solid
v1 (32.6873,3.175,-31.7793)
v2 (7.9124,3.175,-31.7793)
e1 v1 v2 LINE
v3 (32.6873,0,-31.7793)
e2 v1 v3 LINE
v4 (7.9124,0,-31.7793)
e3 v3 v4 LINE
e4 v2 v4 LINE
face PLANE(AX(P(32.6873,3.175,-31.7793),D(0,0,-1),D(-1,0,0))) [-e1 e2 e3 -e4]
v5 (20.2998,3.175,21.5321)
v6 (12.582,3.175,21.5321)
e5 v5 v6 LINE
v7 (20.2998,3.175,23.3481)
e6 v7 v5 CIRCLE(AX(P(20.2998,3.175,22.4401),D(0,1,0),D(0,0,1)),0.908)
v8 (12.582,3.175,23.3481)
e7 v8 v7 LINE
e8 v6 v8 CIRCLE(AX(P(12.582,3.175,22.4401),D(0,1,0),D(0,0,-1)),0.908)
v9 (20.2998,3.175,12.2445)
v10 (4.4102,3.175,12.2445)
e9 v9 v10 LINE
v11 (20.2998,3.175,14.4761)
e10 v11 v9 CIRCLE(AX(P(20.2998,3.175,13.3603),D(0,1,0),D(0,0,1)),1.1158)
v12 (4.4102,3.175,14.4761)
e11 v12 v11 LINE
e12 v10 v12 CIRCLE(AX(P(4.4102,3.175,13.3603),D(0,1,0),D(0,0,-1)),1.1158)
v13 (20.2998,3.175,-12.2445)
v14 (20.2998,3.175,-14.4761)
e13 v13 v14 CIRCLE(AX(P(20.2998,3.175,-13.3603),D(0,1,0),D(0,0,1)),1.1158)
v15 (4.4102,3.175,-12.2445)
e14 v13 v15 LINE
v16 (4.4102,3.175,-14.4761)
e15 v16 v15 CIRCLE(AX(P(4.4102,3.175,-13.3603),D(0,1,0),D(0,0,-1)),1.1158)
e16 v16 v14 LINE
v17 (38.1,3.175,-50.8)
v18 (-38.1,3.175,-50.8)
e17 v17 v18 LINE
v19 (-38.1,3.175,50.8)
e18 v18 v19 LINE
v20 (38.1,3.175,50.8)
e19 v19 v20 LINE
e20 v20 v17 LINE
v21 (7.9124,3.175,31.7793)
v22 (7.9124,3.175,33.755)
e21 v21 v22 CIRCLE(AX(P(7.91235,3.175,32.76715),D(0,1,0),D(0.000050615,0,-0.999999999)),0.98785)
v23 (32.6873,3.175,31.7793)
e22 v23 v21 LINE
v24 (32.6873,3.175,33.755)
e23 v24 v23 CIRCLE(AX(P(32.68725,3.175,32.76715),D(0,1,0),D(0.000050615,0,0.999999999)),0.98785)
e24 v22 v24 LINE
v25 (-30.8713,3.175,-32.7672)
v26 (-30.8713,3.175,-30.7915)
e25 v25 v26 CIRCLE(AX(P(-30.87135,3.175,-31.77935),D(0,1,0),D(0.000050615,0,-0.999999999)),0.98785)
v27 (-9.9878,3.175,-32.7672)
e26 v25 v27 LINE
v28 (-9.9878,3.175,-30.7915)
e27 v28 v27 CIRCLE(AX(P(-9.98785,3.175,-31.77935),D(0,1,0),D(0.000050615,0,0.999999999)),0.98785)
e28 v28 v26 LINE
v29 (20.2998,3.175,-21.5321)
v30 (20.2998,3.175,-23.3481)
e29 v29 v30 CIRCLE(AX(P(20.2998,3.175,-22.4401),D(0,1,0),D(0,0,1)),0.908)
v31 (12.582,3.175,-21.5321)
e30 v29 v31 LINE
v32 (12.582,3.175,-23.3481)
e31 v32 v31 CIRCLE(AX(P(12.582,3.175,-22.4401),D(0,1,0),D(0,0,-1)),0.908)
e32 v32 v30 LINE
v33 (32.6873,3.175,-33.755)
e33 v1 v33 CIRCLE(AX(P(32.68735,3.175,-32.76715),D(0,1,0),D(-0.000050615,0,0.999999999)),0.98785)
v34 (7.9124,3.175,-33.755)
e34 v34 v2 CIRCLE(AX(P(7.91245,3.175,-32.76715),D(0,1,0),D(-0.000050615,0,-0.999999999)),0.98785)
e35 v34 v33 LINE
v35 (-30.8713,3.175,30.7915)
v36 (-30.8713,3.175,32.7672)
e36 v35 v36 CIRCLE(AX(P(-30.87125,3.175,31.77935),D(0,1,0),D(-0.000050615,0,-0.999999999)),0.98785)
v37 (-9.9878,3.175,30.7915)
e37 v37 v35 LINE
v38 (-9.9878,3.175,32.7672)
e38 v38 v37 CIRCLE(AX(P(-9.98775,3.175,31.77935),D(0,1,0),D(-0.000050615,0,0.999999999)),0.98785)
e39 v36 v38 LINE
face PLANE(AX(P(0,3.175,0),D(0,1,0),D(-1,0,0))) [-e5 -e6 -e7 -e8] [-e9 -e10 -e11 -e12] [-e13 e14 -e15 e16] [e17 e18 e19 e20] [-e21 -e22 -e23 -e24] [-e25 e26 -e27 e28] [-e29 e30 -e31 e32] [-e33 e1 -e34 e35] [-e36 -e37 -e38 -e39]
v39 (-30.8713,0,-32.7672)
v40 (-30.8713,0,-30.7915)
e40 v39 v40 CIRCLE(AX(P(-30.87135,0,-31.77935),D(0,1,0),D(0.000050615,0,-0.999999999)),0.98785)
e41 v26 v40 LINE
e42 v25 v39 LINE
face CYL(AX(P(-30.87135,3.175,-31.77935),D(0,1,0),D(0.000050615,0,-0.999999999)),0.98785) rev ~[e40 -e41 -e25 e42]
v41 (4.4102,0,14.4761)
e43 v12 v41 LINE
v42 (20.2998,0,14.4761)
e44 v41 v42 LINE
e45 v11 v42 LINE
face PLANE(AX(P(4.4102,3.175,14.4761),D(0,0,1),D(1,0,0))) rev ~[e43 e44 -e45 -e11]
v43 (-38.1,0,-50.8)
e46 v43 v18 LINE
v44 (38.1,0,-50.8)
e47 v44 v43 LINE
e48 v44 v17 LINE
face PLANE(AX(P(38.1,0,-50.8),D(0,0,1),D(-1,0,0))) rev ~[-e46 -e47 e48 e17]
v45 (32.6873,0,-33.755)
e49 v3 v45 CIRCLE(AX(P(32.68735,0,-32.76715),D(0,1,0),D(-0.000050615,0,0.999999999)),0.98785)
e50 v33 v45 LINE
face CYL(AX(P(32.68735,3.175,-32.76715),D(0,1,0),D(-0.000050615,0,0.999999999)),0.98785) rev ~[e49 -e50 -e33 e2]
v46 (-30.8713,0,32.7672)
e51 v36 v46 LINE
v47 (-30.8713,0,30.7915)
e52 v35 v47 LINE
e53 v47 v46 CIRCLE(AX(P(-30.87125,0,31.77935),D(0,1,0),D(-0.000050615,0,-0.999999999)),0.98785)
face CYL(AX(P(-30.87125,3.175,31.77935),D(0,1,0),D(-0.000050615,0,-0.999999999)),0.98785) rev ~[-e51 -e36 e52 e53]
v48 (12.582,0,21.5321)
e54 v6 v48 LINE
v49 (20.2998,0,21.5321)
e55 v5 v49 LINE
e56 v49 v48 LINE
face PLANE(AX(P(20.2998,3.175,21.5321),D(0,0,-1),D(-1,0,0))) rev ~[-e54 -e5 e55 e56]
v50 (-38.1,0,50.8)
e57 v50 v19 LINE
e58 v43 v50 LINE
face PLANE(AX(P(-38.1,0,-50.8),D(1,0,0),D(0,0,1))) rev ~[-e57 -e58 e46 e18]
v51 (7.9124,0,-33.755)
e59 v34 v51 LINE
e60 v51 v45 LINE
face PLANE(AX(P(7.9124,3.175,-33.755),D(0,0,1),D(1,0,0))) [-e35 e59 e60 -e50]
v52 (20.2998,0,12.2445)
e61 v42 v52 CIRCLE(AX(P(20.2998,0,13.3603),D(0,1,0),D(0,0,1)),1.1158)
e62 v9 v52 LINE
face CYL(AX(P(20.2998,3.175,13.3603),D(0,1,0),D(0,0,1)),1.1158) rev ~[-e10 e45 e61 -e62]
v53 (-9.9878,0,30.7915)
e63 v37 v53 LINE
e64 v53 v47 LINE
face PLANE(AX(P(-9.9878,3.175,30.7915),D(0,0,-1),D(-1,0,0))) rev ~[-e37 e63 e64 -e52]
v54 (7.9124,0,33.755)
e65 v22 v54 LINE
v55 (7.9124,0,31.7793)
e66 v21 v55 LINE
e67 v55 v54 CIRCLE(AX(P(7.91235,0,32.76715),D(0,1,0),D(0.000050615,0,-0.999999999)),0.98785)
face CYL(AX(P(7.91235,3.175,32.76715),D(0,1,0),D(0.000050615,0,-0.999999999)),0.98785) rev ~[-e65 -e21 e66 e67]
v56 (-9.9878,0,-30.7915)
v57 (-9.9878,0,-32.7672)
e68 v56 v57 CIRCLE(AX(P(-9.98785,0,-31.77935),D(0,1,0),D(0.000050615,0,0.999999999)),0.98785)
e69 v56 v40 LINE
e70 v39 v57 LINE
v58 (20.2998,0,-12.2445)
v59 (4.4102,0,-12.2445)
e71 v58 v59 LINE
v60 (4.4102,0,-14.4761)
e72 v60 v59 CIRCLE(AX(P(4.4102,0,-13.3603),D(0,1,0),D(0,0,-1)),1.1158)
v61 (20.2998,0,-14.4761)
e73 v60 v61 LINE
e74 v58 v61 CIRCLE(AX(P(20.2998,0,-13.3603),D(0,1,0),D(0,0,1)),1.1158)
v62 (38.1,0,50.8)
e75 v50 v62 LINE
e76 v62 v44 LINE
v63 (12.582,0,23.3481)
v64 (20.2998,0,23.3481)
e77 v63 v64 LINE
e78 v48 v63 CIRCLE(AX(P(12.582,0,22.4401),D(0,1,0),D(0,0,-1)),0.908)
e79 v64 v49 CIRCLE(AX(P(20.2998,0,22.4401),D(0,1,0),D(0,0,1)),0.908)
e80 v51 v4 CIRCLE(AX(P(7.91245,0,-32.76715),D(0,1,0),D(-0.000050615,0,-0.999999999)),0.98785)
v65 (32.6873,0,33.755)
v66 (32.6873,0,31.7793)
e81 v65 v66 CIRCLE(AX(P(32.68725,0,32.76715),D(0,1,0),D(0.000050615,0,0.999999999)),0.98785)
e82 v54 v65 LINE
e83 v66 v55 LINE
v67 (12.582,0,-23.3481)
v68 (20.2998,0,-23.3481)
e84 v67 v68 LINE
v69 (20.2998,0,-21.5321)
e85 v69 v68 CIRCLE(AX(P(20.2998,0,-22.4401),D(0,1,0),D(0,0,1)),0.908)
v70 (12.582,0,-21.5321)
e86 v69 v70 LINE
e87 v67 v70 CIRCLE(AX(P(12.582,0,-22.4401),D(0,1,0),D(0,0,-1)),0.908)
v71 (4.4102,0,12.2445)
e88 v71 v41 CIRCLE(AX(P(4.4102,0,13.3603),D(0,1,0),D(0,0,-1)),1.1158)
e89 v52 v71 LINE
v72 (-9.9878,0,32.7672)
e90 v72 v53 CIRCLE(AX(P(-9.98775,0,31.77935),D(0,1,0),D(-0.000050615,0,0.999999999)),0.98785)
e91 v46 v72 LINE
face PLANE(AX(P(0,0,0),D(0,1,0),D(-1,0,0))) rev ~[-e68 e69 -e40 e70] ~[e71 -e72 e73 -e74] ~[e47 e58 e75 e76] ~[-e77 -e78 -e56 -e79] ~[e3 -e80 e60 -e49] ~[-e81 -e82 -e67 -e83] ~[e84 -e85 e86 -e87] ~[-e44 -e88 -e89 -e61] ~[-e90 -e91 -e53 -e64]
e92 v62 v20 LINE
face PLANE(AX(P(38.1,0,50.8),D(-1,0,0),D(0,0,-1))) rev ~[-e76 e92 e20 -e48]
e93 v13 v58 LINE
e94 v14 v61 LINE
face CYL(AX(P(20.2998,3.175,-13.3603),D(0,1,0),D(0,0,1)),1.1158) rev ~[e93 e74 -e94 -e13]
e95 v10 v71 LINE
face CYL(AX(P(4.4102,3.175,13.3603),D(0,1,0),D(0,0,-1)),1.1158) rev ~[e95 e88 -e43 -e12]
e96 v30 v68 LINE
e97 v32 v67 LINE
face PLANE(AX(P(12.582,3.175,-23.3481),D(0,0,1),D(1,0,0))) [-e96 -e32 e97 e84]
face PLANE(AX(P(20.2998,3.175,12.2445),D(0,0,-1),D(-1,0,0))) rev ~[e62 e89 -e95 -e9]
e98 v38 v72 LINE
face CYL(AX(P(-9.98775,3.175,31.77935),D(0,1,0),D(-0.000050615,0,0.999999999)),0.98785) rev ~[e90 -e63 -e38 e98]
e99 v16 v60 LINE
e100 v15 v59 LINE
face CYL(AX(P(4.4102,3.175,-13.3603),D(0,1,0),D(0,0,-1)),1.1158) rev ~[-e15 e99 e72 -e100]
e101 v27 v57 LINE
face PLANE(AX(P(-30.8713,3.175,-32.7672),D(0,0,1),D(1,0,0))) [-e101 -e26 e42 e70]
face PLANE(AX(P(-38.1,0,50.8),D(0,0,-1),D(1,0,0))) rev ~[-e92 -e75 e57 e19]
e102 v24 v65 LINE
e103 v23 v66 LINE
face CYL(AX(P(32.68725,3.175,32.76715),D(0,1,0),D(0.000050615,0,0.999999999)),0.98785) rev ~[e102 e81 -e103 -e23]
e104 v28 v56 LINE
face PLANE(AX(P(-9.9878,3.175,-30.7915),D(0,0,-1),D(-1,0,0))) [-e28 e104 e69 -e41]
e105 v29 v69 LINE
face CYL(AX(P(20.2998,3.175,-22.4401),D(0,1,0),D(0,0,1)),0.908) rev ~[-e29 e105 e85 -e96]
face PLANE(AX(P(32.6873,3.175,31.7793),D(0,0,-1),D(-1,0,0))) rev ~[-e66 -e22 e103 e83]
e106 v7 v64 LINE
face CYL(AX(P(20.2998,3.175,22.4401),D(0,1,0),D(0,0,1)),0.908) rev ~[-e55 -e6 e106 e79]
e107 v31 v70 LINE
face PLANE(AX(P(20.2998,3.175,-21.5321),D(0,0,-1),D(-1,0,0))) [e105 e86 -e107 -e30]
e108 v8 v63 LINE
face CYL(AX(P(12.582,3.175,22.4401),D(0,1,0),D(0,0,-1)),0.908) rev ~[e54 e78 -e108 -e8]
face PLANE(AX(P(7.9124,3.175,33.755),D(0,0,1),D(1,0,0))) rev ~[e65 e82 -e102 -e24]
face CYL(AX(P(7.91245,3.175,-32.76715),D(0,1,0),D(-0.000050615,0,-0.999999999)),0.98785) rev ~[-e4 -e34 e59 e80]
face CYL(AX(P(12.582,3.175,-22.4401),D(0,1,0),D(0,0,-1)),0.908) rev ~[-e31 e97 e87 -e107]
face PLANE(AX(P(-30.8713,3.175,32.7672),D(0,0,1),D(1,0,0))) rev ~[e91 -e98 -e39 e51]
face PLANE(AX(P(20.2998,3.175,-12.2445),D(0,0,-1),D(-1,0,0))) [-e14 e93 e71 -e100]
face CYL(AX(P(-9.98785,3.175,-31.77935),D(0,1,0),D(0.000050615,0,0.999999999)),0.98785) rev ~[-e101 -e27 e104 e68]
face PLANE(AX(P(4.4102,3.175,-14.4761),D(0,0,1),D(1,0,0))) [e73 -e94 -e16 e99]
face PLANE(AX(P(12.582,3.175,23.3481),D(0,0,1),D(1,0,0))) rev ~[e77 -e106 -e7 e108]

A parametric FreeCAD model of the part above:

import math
import FreeCAD as App
import Part
import Sketcher
Q = App.Units.Quantity


def add_polygon(sketch, points):
    """Adds a closed chain of lines whose ends are joined by coincident constraints."""
    first, n = sketch.GeometryCount, len(points)
    for a, b in zip(points, points[1:] + points[:1]):
        sketch.addGeometry(Part.LineSegment(App.Vector(*a, 0), App.Vector(*b, 0)), False)
    for i in range(n):
        sketch.addConstraint(Sketcher.Constraint("Coincident", first + i, 2, first + (i + 1) % n, 1))

doc = App.newDocument("Part")
body = doc.addObject("PartDesign::Body", "Body")

sketch1 = doc.addObject("Sketcher::SketchObject", "Sketch")
body.addObject(sketch1)
sketch1.AttachmentSupport = (doc.XZ_Plane, [""])
sketch1.MapMode = "FlatFace"
add_polygon(sketch1, [(38, 51), (38, -51), (-38, -51), (-38, 51)])
sketch1.addConstraint([
    Sketcher.Constraint("Vertical", 0),
    Sketcher.Constraint("Horizontal", 1),
    Sketcher.Constraint("Vertical", 2),
    Sketcher.Constraint("Horizontal", 3),
    Sketcher.Constraint("Symmetric", 0, 2, 2, 2, -1, 1),
    Sketcher.Constraint("DistanceX", 1, 2, 1, 1, Q("3 in")),
    Sketcher.Constraint("DistanceY", 0, 2, 0, 1, Q("4 in")),
])
pad1 = doc.addObject("PartDesign::Pad", "Pad")
body.addObject(pad1)
pad1.Profile = sketch1
pad1.Length = Q("0.125 in")
pad1.Reversed = True

sketch2 = doc.addObject("Sketcher::SketchObject", "Sketch001")
body.addObject(sketch2)
sketch2.AttachmentSupport = (doc.XZ_Plane, [""])
sketch2.MapMode = "FlatFace"
sketch2.AttachmentOffset = App.Placement(App.Vector(0, 0, -0.125 * 25.4), App.Rotation())
sketch2.addGeometry([
    Part.ArcOfCircle(Part.Circle(App.Vector(-10, 31.8, 0), App.Vector(0, 0, 1), 1), math.radians(-90), math.radians(90)),
    Part.LineSegment(App.Vector(-10, 30.8, 0), App.Vector(-30.9, 30.8, 0)),
    Part.ArcOfCircle(Part.Circle(App.Vector(-30.9, 31.8, 0), App.Vector(0, 0, 1), 1), math.radians(90), math.radians(270)),
    Part.LineSegment(App.Vector(-30.9, 32.8, 0), App.Vector(-10, 32.8, 0)),
    Part.ArcOfCircle(Part.Circle(App.Vector(7.9, 32.8, 0), App.Vector(0, 0, 1), 1), math.radians(90), math.radians(270)),
    Part.LineSegment(App.Vector(7.9, 33.8, 0), App.Vector(32.7, 33.8, 0)),
    Part.ArcOfCircle(Part.Circle(App.Vector(32.7, 32.8, 0), App.Vector(0, 0, 1), 1), math.radians(-90), math.radians(90)),
    Part.LineSegment(App.Vector(32.7, 31.8, 0), App.Vector(7.9, 31.8, 0)),
    Part.ArcOfCircle(Part.Circle(App.Vector(20.3, 22.4, 0), App.Vector(0, 0, 1), 0.9), math.radians(-90), math.radians(90)),
    Part.LineSegment(App.Vector(20.3, 21.5, 0), App.Vector(12.6, 21.5, 0)),
    Part.ArcOfCircle(Part.Circle(App.Vector(12.6, 22.4, 0), App.Vector(0, 0, 1), 0.9), math.radians(90), math.radians(270)),
    Part.LineSegment(App.Vector(12.6, 23.3, 0), App.Vector(20.3, 23.3, 0)),
    Part.ArcOfCircle(Part.Circle(App.Vector(20.3, 13.4, 0), App.Vector(0, 0, 1), 1.1), math.radians(-90), math.radians(90)),
    Part.LineSegment(App.Vector(20.3, 12.2, 0), App.Vector(4.4, 12.2, 0)),
    Part.ArcOfCircle(Part.Circle(App.Vector(4.4, 13.4, 0), App.Vector(0, 0, 1), 1.1), math.radians(90), math.radians(270)),
    Part.LineSegment(App.Vector(4.4, 14.5, 0), App.Vector(20.3, 14.5, 0)),
    Part.LineSegment(App.Vector(-30.9, -30.8, 0), App.Vector(-10, -30.8, 0)),
    Part.ArcOfCircle(Part.Circle(App.Vector(-10, -31.8, 0), App.Vector(0, 0, 1), 1), math.radians(-90), math.radians(90)),
    Part.LineSegment(App.Vector(-10, -32.8, 0), App.Vector(-30.9, -32.8, 0)),
    Part.ArcOfCircle(Part.Circle(App.Vector(-30.9, -31.8, 0), App.Vector(0, 0, 1), 1), math.radians(90), math.radians(270)),
    Part.LineSegment(App.Vector(32.7, -33.8, 0), App.Vector(7.9, -33.8, 0)),
    Part.ArcOfCircle(Part.Circle(App.Vector(7.9, -32.8, 0), App.Vector(0, 0, 1), 1), math.radians(90), math.radians(270)),
    Part.LineSegment(App.Vector(7.9, -31.8, 0), App.Vector(32.7, -31.8, 0)),
    Part.ArcOfCircle(Part.Circle(App.Vector(32.7, -32.8, 0), App.Vector(0, 0, 1), 1), math.radians(-90), math.radians(90)),
    Part.LineSegment(App.Vector(12.6, -21.5, 0), App.Vector(20.3, -21.5, 0)),
    Part.ArcOfCircle(Part.Circle(App.Vector(20.3, -22.4, 0), App.Vector(0, 0, 1), 0.9), math.radians(-90), math.radians(90)),
    Part.LineSegment(App.Vector(20.3, -23.3, 0), App.Vector(12.6, -23.3, 0)),
    Part.ArcOfCircle(Part.Circle(App.Vector(12.6, -22.4, 0), App.Vector(0, 0, 1), 0.9), math.radians(90), math.radians(270)),
    Part.LineSegment(App.Vector(4.4, -12.2, 0), App.Vector(20.3, -12.2, 0)),
    Part.ArcOfCircle(Part.Circle(App.Vector(20.3, -13.4, 0), App.Vector(0, 0, 1), 1.1), math.radians(-90), math.radians(90)),
    Part.LineSegment(App.Vector(20.3, -14.5, 0), App.Vector(4.4, -14.5, 0)),
    Part.ArcOfCircle(Part.Circle(App.Vector(4.4, -13.4, 0), App.Vector(0, 0, 1), 1.1), math.radians(90), math.radians(270)),
], False)
sketch2.addConstraint([
    Sketcher.Constraint("Tangent", 0, 1, 1, 1),
    Sketcher.Constraint("Tangent", 1, 2, 2, 2),
    Sketcher.Constraint("Tangent", 2, 1, 3, 1),
    Sketcher.Constraint("Tangent", 3, 2, 0, 2),
    Sketcher.Constraint("Tangent", 4, 1, 5, 1),
    Sketcher.Constraint("Tangent", 5, 2, 6, 2),
    Sketcher.Constraint("Tangent", 6, 1, 7, 1),
    Sketcher.Constraint("Tangent", 7, 2, 4, 2),
    Sketcher.Constraint("Tangent", 8, 1, 9, 1),
    Sketcher.Constraint("Tangent", 9, 2, 10, 2),
    Sketcher.Constraint("Tangent", 10, 1, 11, 1),
    Sketcher.Constraint("Tangent", 11, 2, 8, 2),
    Sketcher.Constraint("Tangent", 12, 1, 13, 1),
    Sketcher.Constraint("Tangent", 13, 2, 14, 2),
    Sketcher.Constraint("Tangent", 14, 1, 15, 1),
    Sketcher.Constraint("Tangent", 15, 2, 12, 2),
    Sketcher.Constraint("Tangent", 16, 2, 17, 2),
    Sketcher.Constraint("Tangent", 17, 1, 18, 1),
    Sketcher.Constraint("Tangent", 18, 2, 19, 2),
    Sketcher.Constraint("Tangent", 19, 1, 16, 1),
    Sketcher.Constraint("Tangent", 20, 2, 21, 2),
    Sketcher.Constraint("Tangent", 21, 1, 22, 1),
    Sketcher.Constraint("Tangent", 22, 2, 23, 2),
    Sketcher.Constraint("Tangent", 23, 1, 20, 1),
    Sketcher.Constraint("Tangent", 24, 2, 25, 2),
    Sketcher.Constraint("Tangent", 25, 1, 26, 1),
    Sketcher.Constraint("Tangent", 26, 2, 27, 2),
    Sketcher.Constraint("Tangent", 27, 1, 24, 1),
    Sketcher.Constraint("Tangent", 28, 2, 29, 2),
    Sketcher.Constraint("Tangent", 29, 1, 30, 1),
    Sketcher.Constraint("Tangent", 30, 2, 31, 2),
    Sketcher.Constraint("Tangent", 31, 1, 28, 1),
    Sketcher.Constraint("Horizontal", 1),
    Sketcher.Constraint("Horizontal", 3),
    Sketcher.Constraint("Horizontal", 5),
    Sketcher.Constraint("Horizontal", 7),
    Sketcher.Constraint("Horizontal", 9),
    Sketcher.Constraint("Horizontal", 11),
    Sketcher.Constraint("Horizontal", 13),
    Sketcher.Constraint("Horizontal", 15),
    Sketcher.Constraint("Horizontal", 16),
    Sketcher.Constraint("Horizontal", 18),
    Sketcher.Constraint("Horizontal", 20),
    Sketcher.Constraint("Horizontal", 22),
    Sketcher.Constraint("Horizontal", 24),
    Sketcher.Constraint("Horizontal", 26),
    Sketcher.Constraint("Horizontal", 28),
    Sketcher.Constraint("Horizontal", 30),
    Sketcher.Constraint("Equal", 2, 4),
    Sketcher.Constraint("Equal", 6, 17),
    Sketcher.Constraint("Equal", 19, 21),
    Sketcher.Constraint("Equal", 10, 25),
    Sketcher.Constraint("Equal", 14, 29),
    Sketcher.Constraint("Symmetric", 0, 3, 17, 3, -1),
    Sketcher.Constraint("Symmetric", 4, 3, 21, 3, -1),
    Sketcher.Constraint("Symmetric", 8, 3, 25, 3, -1),
    Sketcher.Constraint("Symmetric", 12, 3, 29, 3, -1),
    Sketcher.Constraint("Horizontal", 6, 3, 2, 1),
    Sketcher.Constraint("Vertical", 8, 3, 12, 3),
    Sketcher.Constraint("Vertical", 2, 3, 19, 3),
    Sketcher.Constraint("Vertical", 6, 3, 23, 3),
    Sketcher.Constraint("Vertical", 10, 3, 27, 3),
    Sketcher.Constraint("Vertical", 14, 3, 31, 3),
    Sketcher.Constraint("Radius", 0, Q("0.0389 in")),
    Sketcher.Constraint("Radius", 8, 0.908),
    Sketcher.Constraint("Radius", 12, 1.1158),
    Sketcher.Constraint("DistanceX", 5, 1, 5, 2, Q("0.9754 in")),
    Sketcher.Constraint("DistanceY", -1, 1, 12, 3, Q("0.526 in")),
    Sketcher.Constraint("DistanceX", 1, 2, 1, 1, 20.8835),
    Sketcher.Constraint("DistanceX", 9, 2, 9, 1, 7.7178),
    Sketcher.Constraint("DistanceX", 13, 2, 13, 1, 15.8896),
    Sketcher.Constraint("DistanceX", 2, 3, -1, 1, Q("1.2154 in")),
    Sketcher.Constraint("DistanceX", -1, 1, 4, 3, Q("0.3115 in")),
    Sketcher.Constraint("DistanceX", -1, 1, 8, 3, Q("0.7992 in")),
    Sketcher.Constraint("DistanceY", 17, 3, 0, 3, Q("2.5023 in")),
    Sketcher.Constraint("DistanceY", 10, 3, 0, 1, Q("0.3288 in")),
])
pocket1 = doc.addObject("PartDesign::Pocket", "Pocket")
body.addObject(pocket1)
pocket1.Profile = sketch2
pocket1.Length = Q("0.125 in")
pocket1.Reversed = True

doc.recompute()
